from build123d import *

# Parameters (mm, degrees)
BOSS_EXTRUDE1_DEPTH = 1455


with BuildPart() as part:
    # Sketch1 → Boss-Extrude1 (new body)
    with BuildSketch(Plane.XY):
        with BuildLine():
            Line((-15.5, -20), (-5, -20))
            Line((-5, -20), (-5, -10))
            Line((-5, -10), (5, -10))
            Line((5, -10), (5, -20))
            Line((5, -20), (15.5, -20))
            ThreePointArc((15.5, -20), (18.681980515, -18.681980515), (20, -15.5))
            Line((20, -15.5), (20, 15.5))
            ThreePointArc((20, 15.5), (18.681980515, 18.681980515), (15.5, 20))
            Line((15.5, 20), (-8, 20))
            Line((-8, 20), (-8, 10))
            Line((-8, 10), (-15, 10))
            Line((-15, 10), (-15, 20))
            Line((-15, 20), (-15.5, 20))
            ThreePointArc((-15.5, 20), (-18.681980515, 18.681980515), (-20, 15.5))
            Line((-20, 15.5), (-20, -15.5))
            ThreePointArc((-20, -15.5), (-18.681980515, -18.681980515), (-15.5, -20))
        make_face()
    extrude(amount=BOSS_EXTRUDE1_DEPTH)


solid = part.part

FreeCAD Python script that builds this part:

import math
import FreeCAD as App
import Part
import Sketcher
from FreeCAD import Vector

doc = App.newDocument("Part")
params = doc.addObject("Spreadsheet::Sheet", "Params")
for row, (alias, value) in enumerate([
    ("sketch1_radius", "4.5 mm"),
    ("sketch1_width", "10 mm"),
    ("sketch1_width2", "7 mm"),
    ("sketch1_height", "31 mm"),
    ("sketch1_width3", "10.5 mm"),
    ("pad1_length", "1455 mm"),
], start=1):
    params.set(f"A{row}", alias)
    params.set(f"B{row}", "=" + value)
    params.setAlias(f"B{row}", alias)

body = doc.addObject("PartDesign::Body", "Body")

# Sketch on XY plane
sketch1 = body.newObject("Sketcher::SketchObject", "Sketch")
sketch1.AttachmentSupport = (doc.getObject("XY_Plane"), [""])
sketch1.MapMode = "FlatFace"
sketch1.addGeometry(Part.LineSegment(Vector(-15.5, -20, 0), Vector(-5, -20, 0)), False)
sketch1.addGeometry(Part.LineSegment(Vector(-5, -20, 0), Vector(-5, -10, 0)), False)
sketch1.addGeometry(Part.LineSegment(Vector(-5, -10, 0), Vector(5, -10, 0)), False)
sketch1.addGeometry(Part.LineSegment(Vector(5, -10, 0), Vector(5, -20, 0)), False)
sketch1.addGeometry(Part.LineSegment(Vector(5, -20, 0), Vector(15.5, -20, 0)), False)
sketch1.addGeometry(Part.ArcOfCircle(Part.Circle(Vector(15.5, -15.5, 0), Vector(0, 0, 1), 4.5), math.radians(-90), math.radians(0)), False)
sketch1.addGeometry(Part.LineSegment(Vector(20, -15.5, 0), Vector(20, 15.5, 0)), False)
sketch1.addGeometry(Part.ArcOfCircle(Part.Circle(Vector(15.5, 15.5, 0), Vector(0, 0, 1), 4.5), math.radians(0), math.radians(90)), False)
sketch1.addGeometry(Part.LineSegment(Vector(15.5, 20, 0), Vector(-8, 20, 0)), False)
sketch1.addGeometry(Part.LineSegment(Vector(-8, 20, 0), Vector(-8, 10, 0)), False)
sketch1.addGeometry(Part.LineSegment(Vector(-8, 10, 0), Vector(-15, 10, 0)), False)
sketch1.addGeometry(Part.LineSegment(Vector(-15, 10, 0), Vector(-15, 20, 0)), False)
sketch1.addGeometry(Part.LineSegment(Vector(-15, 20, 0), Vector(-15.5, 20, 0)), False)
sketch1.addGeometry(Part.ArcOfCircle(Part.Circle(Vector(-15.5, 15.5, 0), Vector(0, 0, 1), 4.5), math.radians(90), math.radians(180)), False)
sketch1.addGeometry(Part.LineSegment(Vector(-20, 15.5, 0), Vector(-20, -15.5, 0)), False)
sketch1.addGeometry(Part.ArcOfCircle(Part.Circle(Vector(-15.5, -15.5, 0), Vector(0, 0, 1), 4.5), math.radians(-180), math.radians(-90)), False)
sketch1.addConstraint(Sketcher.Constraint("Coincident", 0, 2, 1, 1))
sketch1.addConstraint(Sketcher.Constraint("Coincident", 1, 2, 2, 1))
sketch1.addConstraint(Sketcher.Constraint("Coincident", 2, 2, 3, 1))
sketch1.addConstraint(Sketcher.Constraint("Coincident", 3, 2, 4, 1))
sketch1.addConstraint(Sketcher.Constraint("Tangent", 4, 2, 5, 1))
sketch1.addConstraint(Sketcher.Constraint("Tangent", 5, 2, 6, 1))
sketch1.addConstraint(Sketcher.Constraint("Tangent", 6, 2, 7, 1))
sketch1.addConstraint(Sketcher.Constraint("Tangent", 7, 2, 8, 1))
sketch1.addConstraint(Sketcher.Constraint("Coincident", 8, 2, 9, 1))
sketch1.addConstraint(Sketcher.Constraint("Coincident", 9, 2, 10, 1))
sketch1.addConstraint(Sketcher.Constraint("Coincident", 10, 2, 11, 1))
sketch1.addConstraint(Sketcher.Constraint("Coincident", 11, 2, 12, 1))
sketch1.addConstraint(Sketcher.Constraint("Tangent", 12, 2, 13, 1))
sketch1.addConstraint(Sketcher.Constraint("Tangent", 13, 2, 14, 1))
sketch1.addConstraint(Sketcher.Constraint("Tangent", 14, 2, 15, 1))
sketch1.addConstraint(Sketcher.Constraint("Tangent", 15, 2, 0, 1))
sketch1.addConstraint(Sketcher.Constraint("Horizontal", 0))
sketch1.addConstraint(Sketcher.Constraint("Vertical", 1))
sketch1.addConstraint(Sketcher.Constraint("Horizontal", 2))
sketch1.addConstraint(Sketcher.Constraint("Vertical", 3))
sketch1.addConstraint(Sketcher.Constraint("Horizontal", 4))
sketch1.addConstraint(Sketcher.Constraint("Vertical", 6))
sketch1.addConstraint(Sketcher.Constraint("Horizontal", 8))
sketch1.addConstraint(Sketcher.Constraint("Vertical", 9))
sketch1.addConstraint(Sketcher.Constraint("Horizontal", 10))
sketch1.addConstraint(Sketcher.Constraint("Vertical", 11))
sketch1.addConstraint(Sketcher.Constraint("Horizontal", 12))
sketch1.addConstraint(Sketcher.Constraint("Vertical", 14))
sketch1.addConstraint(Sketcher.Constraint("Equal", 5, 7))
sketch1.addConstraint(Sketcher.Constraint("Equal", 7, 13))
sketch1.addConstraint(Sketcher.Constraint("Equal", 13, 15))
sketch1.addConstraint(Sketcher.Constraint("Symmetric", 5, 3, 13, 3, -1, 1))
sketch1.addConstraint(Sketcher.Constraint("Symmetric", 0, 2, 3, 2, -2))
sketch1.addConstraint(Sketcher.Constraint("Horizontal", 7, 3, 13, 3))
sketch1.addConstraint(Sketcher.Constraint("Equal", 2, 1))
sketch1.addConstraint(Sketcher.Constraint("Equal", 3, 9))
sketch1.addConstraint(Sketcher.Constraint("Radius", 5, 4.5))
sketch1.addConstraint(Sketcher.Constraint("DistanceX", 2, 1, 2, 2, 10.0))
sketch1.addConstraint(Sketcher.Constraint("DistanceX", 10, 2, 10, 1, 7.0))
sketch1.addConstraint(Sketcher.Constraint("DistanceY", 6, 1, 6, 2, 31.0))
sketch1.addConstraint(Sketcher.Constraint("DistanceX", 0, 1, 0, 2, 10.5))
sketch1.addConstraint(Sketcher.Constraint("DistanceX", 8, 2, 8, 1, 23.5))
sketch1.setExpression("Constraints[36]", "Params.sketch1_radius")
sketch1.setExpression("Constraints[37]", "Params.sketch1_width")
sketch1.setExpression("Constraints[38]", "Params.sketch1_width2")
sketch1.setExpression("Constraints[39]", "Params.sketch1_height")
sketch1.setExpression("Constraints[40]", "Params.sketch1_width3")
pad1 = body.newObject("PartDesign::Pad", "Pad")
pad1.Profile = sketch1
pad1.setExpression("Length", "Params.pad1_length")

doc.recompute()
